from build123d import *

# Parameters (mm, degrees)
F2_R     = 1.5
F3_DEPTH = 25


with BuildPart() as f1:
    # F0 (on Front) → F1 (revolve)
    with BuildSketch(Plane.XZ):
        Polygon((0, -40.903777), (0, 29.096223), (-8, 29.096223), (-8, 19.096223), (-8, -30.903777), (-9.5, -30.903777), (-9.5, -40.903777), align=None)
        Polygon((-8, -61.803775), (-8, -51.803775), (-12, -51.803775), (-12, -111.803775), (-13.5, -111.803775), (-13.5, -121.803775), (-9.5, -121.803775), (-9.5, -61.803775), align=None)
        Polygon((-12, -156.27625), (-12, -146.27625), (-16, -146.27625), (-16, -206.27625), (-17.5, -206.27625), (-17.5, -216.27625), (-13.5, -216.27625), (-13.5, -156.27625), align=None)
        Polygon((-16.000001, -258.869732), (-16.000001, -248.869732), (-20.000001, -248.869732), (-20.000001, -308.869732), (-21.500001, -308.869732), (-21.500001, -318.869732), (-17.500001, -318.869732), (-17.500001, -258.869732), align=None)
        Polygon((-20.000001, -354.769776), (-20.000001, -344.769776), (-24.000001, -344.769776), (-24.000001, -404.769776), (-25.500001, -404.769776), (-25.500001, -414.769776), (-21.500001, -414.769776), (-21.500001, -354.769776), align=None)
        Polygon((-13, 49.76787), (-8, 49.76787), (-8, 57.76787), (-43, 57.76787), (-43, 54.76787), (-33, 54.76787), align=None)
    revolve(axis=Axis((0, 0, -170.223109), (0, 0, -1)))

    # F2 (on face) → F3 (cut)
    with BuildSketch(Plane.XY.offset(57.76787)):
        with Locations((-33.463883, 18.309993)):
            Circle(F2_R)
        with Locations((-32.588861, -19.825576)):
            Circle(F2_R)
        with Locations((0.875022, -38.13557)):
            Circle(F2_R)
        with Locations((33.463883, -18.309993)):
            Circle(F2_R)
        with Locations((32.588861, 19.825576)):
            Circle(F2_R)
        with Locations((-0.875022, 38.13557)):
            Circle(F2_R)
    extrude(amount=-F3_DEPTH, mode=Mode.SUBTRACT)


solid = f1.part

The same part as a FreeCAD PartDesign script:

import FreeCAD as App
import Part
import Sketcher
from FreeCAD import Vector
Q = App.Units.Quantity

doc = App.newDocument("Part")
params = doc.addObject("Spreadsheet::Sheet", "Params")
for row, (alias, value) in enumerate([
    ("sketch1_width", "8 mm"),
    ("sketch1_width2", "4 mm"),
    ("sketch1_width3", "5 mm"),
    ("sketch1_width4", "35 mm"),
    ("sketch1_width5", "10 mm"),
    ("revolution_angle", "360 deg"),
    ("sketch2_diameter", "3 mm"),
    ("pocket1_length", "25 mm"),
], start=1):
    params.set(f"A{row}", alias)
    params.set(f"B{row}", "=" + value)
    params.setAlias(f"B{row}", alias)

body = doc.addObject("PartDesign::Body", "Body")
body.AllowCompound = True

# Sketch on XZ plane
sketch1 = doc.addObject("Sketcher::SketchObject", "Sketch")
body.addObject(sketch1)
sketch1.AttachmentSupport = (doc.XZ_Plane, [""])
sketch1.MapMode = "FlatFace"
sketch1.addGeometry([
    Part.LineSegment(Vector(0, -40.9, 0), Vector(0, 29.1, 0)),  # 0
    Part.LineSegment(Vector(0, 29.1, 0), Vector(-8, 29.1, 0)),  # 1
    Part.LineSegment(Vector(-8, 29.1, 0), Vector(-8, -30.9, 0)),  # 2
    Part.LineSegment(Vector(-8, -30.9, 0), Vector(-9.5, -30.9, 0)),  # 3
    Part.LineSegment(Vector(-9.5, -30.9, 0), Vector(-9.5, -40.9, 0)),  # 4
    Part.LineSegment(Vector(-9.5, -40.9, 0), Vector(0, -40.9, 0)),  # 5
    Part.LineSegment(Vector(-8, -61.8, 0), Vector(-8, -51.8, 0)),  # 6
    Part.LineSegment(Vector(-8, -51.8, 0), Vector(-12, -51.8, 0)),  # 7
    Part.LineSegment(Vector(-12, -51.8, 0), Vector(-12, -111.8, 0)),  # 8
    Part.LineSegment(Vector(-12, -111.8, 0), Vector(-13.5, -111.8, 0)),  # 9
    Part.LineSegment(Vector(-13.5, -111.8, 0), Vector(-13.5, -121.8, 0)),  # 10
    Part.LineSegment(Vector(-13.5, -121.8, 0), Vector(-9.5, -121.8, 0)),  # 11
    Part.LineSegment(Vector(-9.5, -121.8, 0), Vector(-9.5, -61.8, 0)),  # 12
    Part.LineSegment(Vector(-9.5, -61.8, 0), Vector(-8, -61.8, 0)),  # 13
    Part.LineSegment(Vector(-12, -156.3, 0), Vector(-12, -146.3, 0)),  # 14
    Part.LineSegment(Vector(-12, -146.3, 0), Vector(-16, -146.3, 0)),  # 15
    Part.LineSegment(Vector(-16, -146.3, 0), Vector(-16, -206.3, 0)),  # 16
    Part.LineSegment(Vector(-16, -206.3, 0), Vector(-17.5, -206.3, 0)),  # 17
    Part.LineSegment(Vector(-17.5, -206.3, 0), Vector(-17.5, -216.3, 0)),  # 18
    Part.LineSegment(Vector(-17.5, -216.3, 0), Vector(-13.5, -216.3, 0)),  # 19
    Part.LineSegment(Vector(-13.5, -216.3, 0), Vector(-13.5, -156.3, 0)),  # 20
    Part.LineSegment(Vector(-13.5, -156.3, 0), Vector(-12, -156.3, 0)),  # 21
    Part.LineSegment(Vector(-16, -258.9, 0), Vector(-16, -248.9, 0)),  # 22
    Part.LineSegment(Vector(-16, -248.9, 0), Vector(-20, -248.9, 0)),  # 23
    Part.LineSegment(Vector(-20, -248.9, 0), Vector(-20, -308.9, 0)),  # 24
    Part.LineSegment(Vector(-20, -308.9, 0), Vector(-21.5, -308.9, 0)),  # 25
    Part.LineSegment(Vector(-21.5, -308.9, 0), Vector(-21.5, -318.9, 0)),  # 26
    Part.LineSegment(Vector(-21.5, -318.9, 0), Vector(-17.5, -318.9, 0)),  # 27
    Part.LineSegment(Vector(-17.5, -318.9, 0), Vector(-17.5, -258.9, 0)),  # 28
    Part.LineSegment(Vector(-17.5, -258.9, 0), Vector(-16, -258.9, 0)),  # 29
    Part.LineSegment(Vector(-20, -354.8, 0), Vector(-20, -344.8, 0)),  # 30
    Part.LineSegment(Vector(-20, -344.8, 0), Vector(-24, -344.8, 0)),  # 31
    Part.LineSegment(Vector(-24, -344.8, 0), Vector(-24, -404.8, 0)),  # 32
    Part.LineSegment(Vector(-24, -404.8, 0), Vector(-25.5, -404.8, 0)),  # 33
    Part.LineSegment(Vector(-25.5, -404.8, 0), Vector(-25.5, -414.8, 0)),  # 34
    Part.LineSegment(Vector(-25.5, -414.8, 0), Vector(-21.5, -414.8, 0)),  # 35
    Part.LineSegment(Vector(-21.5, -414.8, 0), Vector(-21.5, -354.8, 0)),  # 36
    Part.LineSegment(Vector(-21.5, -354.8, 0), Vector(-20, -354.8, 0)),  # 37
    Part.LineSegment(Vector(-13, 49.8, 0), Vector(-8, 49.8, 0)),  # 38
    Part.LineSegment(Vector(-8, 49.8, 0), Vector(-8, 57.8, 0)),  # 39
    Part.LineSegment(Vector(-8, 57.8, 0), Vector(-43, 57.8, 0)),  # 40
    Part.LineSegment(Vector(-43, 57.8, 0), Vector(-43, 54.8, 0)),  # 41
    Part.LineSegment(Vector(-43, 54.8, 0), Vector(-33, 54.8, 0)),  # 42
    Part.LineSegment(Vector(-33, 54.8, 0), Vector(-13, 49.8, 0)),  # 43
], False)
sketch1.addConstraint([
    Sketcher.Constraint("Coincident", 0, 2, 1, 1),
    Sketcher.Constraint("Coincident", 1, 2, 2, 1),
    Sketcher.Constraint("Coincident", 2, 2, 3, 1),
    Sketcher.Constraint("Coincident", 3, 2, 4, 1),
    Sketcher.Constraint("Coincident", 4, 2, 5, 1),
    Sketcher.Constraint("Coincident", 5, 2, 0, 1),
    Sketcher.Constraint("Coincident", 6, 2, 7, 1),
    Sketcher.Constraint("Coincident", 7, 2, 8, 1),
    Sketcher.Constraint("Coincident", 8, 2, 9, 1),
    Sketcher.Constraint("Coincident", 9, 2, 10, 1),
    Sketcher.Constraint("Coincident", 10, 2, 11, 1),
    Sketcher.Constraint("Coincident", 11, 2, 12, 1),
    Sketcher.Constraint("Coincident", 12, 2, 13, 1),
    Sketcher.Constraint("Coincident", 13, 2, 6, 1),
    Sketcher.Constraint("Coincident", 14, 2, 15, 1),
    Sketcher.Constraint("Coincident", 15, 2, 16, 1),
    Sketcher.Constraint("Coincident", 16, 2, 17, 1),
    Sketcher.Constraint("Coincident", 17, 2, 18, 1),
    Sketcher.Constraint("Coincident", 18, 2, 19, 1),
    Sketcher.Constraint("Coincident", 19, 2, 20, 1),
    Sketcher.Constraint("Coincident", 20, 2, 21, 1),
    Sketcher.Constraint("Coincident", 21, 2, 14, 1),
    Sketcher.Constraint("Coincident", 22, 2, 23, 1),
    Sketcher.Constraint("Coincident", 23, 2, 24, 1),
    Sketcher.Constraint("Coincident", 24, 2, 25, 1),
    Sketcher.Constraint("Coincident", 25, 2, 26, 1),
    Sketcher.Constraint("Coincident", 26, 2, 27, 1),
    Sketcher.Constraint("Coincident", 27, 2, 28, 1),
    Sketcher.Constraint("Coincident", 28, 2, 29, 1),
    Sketcher.Constraint("Coincident", 29, 2, 22, 1),
    Sketcher.Constraint("Coincident", 30, 2, 31, 1),
    Sketcher.Constraint("Coincident", 31, 2, 32, 1),
    Sketcher.Constraint("Coincident", 32, 2, 33, 1),
    Sketcher.Constraint("Coincident", 33, 2, 34, 1),
    Sketcher.Constraint("Coincident", 34, 2, 35, 1),
    Sketcher.Constraint("Coincident", 35, 2, 36, 1),
    Sketcher.Constraint("Coincident", 36, 2, 37, 1),
    Sketcher.Constraint("Coincident", 37, 2, 30, 1),
    Sketcher.Constraint("Coincident", 38, 2, 39, 1),
    Sketcher.Constraint("Coincident", 39, 2, 40, 1),
    Sketcher.Constraint("Coincident", 40, 2, 41, 1),
    Sketcher.Constraint("Coincident", 41, 2, 42, 1),
    Sketcher.Constraint("Coincident", 42, 2, 43, 1),
    Sketcher.Constraint("Coincident", 43, 2, 38, 1),
    Sketcher.Constraint("Vertical", 0),
    Sketcher.Constraint("Horizontal", 1),
    Sketcher.Constraint("Vertical", 2),
    Sketcher.Constraint("Horizontal", 3),
    Sketcher.Constraint("Vertical", 4),
    Sketcher.Constraint("Horizontal", 5),
    Sketcher.Constraint("Vertical", 6),
    Sketcher.Constraint("Horizontal", 7),
    Sketcher.Constraint("Vertical", 8),
    Sketcher.Constraint("Horizontal", 9),
    Sketcher.Constraint("Vertical", 10),
    Sketcher.Constraint("Horizontal", 11),
    Sketcher.Constraint("Vertical", 12),
    Sketcher.Constraint("Horizontal", 13),
    Sketcher.Constraint("Vertical", 14),
    Sketcher.Constraint("Horizontal", 15),
    Sketcher.Constraint("Vertical", 16),
    Sketcher.Constraint("Horizontal", 17),
    Sketcher.Constraint("Vertical", 18),
    Sketcher.Constraint("Horizontal", 19),
    Sketcher.Constraint("Vertical", 20),
    Sketcher.Constraint("Horizontal", 21),
    Sketcher.Constraint("Vertical", 22),
    Sketcher.Constraint("Horizontal", 23),
    Sketcher.Constraint("Vertical", 24),
    Sketcher.Constraint("Horizontal", 25),
    Sketcher.Constraint("Vertical", 26),
    Sketcher.Constraint("Horizontal", 27),
    Sketcher.Constraint("Vertical", 28),
    Sketcher.Constraint("Horizontal", 29),
    Sketcher.Constraint("Vertical", 30),
    Sketcher.Constraint("Horizontal", 31),
    Sketcher.Constraint("Vertical", 32),
    Sketcher.Constraint("Horizontal", 33),
    Sketcher.Constraint("Vertical", 34),
    Sketcher.Constraint("Horizontal", 35),
    Sketcher.Constraint("Vertical", 36),
    Sketcher.Constraint("Horizontal", 37),
    Sketcher.Constraint("Horizontal", 38),
    Sketcher.Constraint("Vertical", 39),
    Sketcher.Constraint("Horizontal", 40),
    Sketcher.Constraint("Vertical", 41),
    Sketcher.Constraint("Horizontal", 42),
    Sketcher.Constraint("PointOnObject", 0, 2, -2),
    Sketcher.Constraint("Vertical", 2, 2, 6, 2),
    Sketcher.Constraint("Vertical", 4, 2, 11, 2),
    Sketcher.Constraint("Vertical", 8, 2, 14, 2),
    Sketcher.Constraint("Vertical", 10, 2, 19, 2),
    Sketcher.Constraint("Vertical", 16, 2, 22, 2),
    Sketcher.Constraint("Vertical", 18, 2, 27, 2),
    Sketcher.Constraint("Vertical", 24, 2, 30, 2),
    Sketcher.Constraint("Vertical", 26, 2, 35, 2),
    Sketcher.Constraint("Vertical", 13, 2, 38, 2),
    Sketcher.Constraint("Equal", 3, 9),
    Sketcher.Constraint("Equal", 11, 15),
    Sketcher.Constraint("Equal", 13, 17),
    Sketcher.Constraint("Equal", 19, 23),
    Sketcher.Constraint("Equal", 21, 25),
    Sketcher.Constraint("Equal", 27, 31),
    Sketcher.Constraint("Equal", 29, 33),
    Sketcher.Constraint("Equal", 42, 4),
    Sketcher.Constraint("Equal", 4, 6),
    Sketcher.Constraint("Equal", 2, 8),
    Sketcher.Constraint("Equal", 6, 10),
    Sketcher.Constraint("Equal", 10, 14),
    Sketcher.Constraint("Equal", 12, 16),
    Sketcher.Constraint("Equal", 14, 18),
    Sketcher.Constraint("Equal", 18, 22),
    Sketcher.Constraint("Equal", 20, 24),
    Sketcher.Constraint("Equal", 22, 26),
    Sketcher.Constraint("Equal", 26, 30),
    Sketcher.Constraint("Equal", 28, 32),
    Sketcher.Constraint("Equal", 30, 34),
    Sketcher.Constraint("Equal", 1, 39),
    Sketcher.Constraint("DistanceX", 1, 2, 1, 1, Q("8 mm")),
    Sketcher.Constraint("DistanceX", 7, 2, 7, 1, Q("4 mm")),
    Sketcher.Constraint("DistanceX", 38, 1, 38, 2, Q("5 mm")),
    Sketcher.Constraint("DistanceX", 40, 2, 40, 1, Q("35 mm")),
    Sketcher.Constraint("DistanceX", 42, 1, 42, 2, Q("10 mm")),
    Sketcher.Constraint("DistanceY", 0, 1, 0, 2, Q("70 mm")),
    Sketcher.Constraint("DistanceY", 41, 2, 41, 1, Q("3 mm")),
    Sketcher.Constraint("DistanceX", 3, 2, 3, 1, Q("1.5 mm")),
    Sketcher.Constraint("DistanceY", 6, 2, 4, 2, Q("10.899998 mm")),
    Sketcher.Constraint("DistanceY", 14, 2, -1, 1, Q("146.27625 mm")),
    Sketcher.Constraint("DistanceY", 22, 2, -1, 1, Q("248.869732 mm")),
    Sketcher.Constraint("DistanceY", -1, 1, 38, 2, Q("49.76787 mm")),
    Sketcher.Constraint("DistanceY", -1, 1, 0, 2, Q("29.096223 mm")),
    Sketcher.Constraint("DistanceY", 30, 2, -1, 1, Q("344.769776 mm")),
])
sketch1.setExpression("Constraints[118]", "Params.sketch1_width")
sketch1.setExpression("Constraints[119]", "Params.sketch1_width2")
sketch1.setExpression("Constraints[120]", "Params.sketch1_width3")
sketch1.setExpression("Constraints[121]", "Params.sketch1_width4")
sketch1.setExpression("Constraints[122]", "Params.sketch1_width5")
revolution = doc.addObject("PartDesign::Revolution", "Revolution")
body.addObject(revolution)
revolution.Profile = sketch1
revolution.ReferenceAxis = (sketch1, ["V_Axis"])
revolution.setExpression("Angle", "Params.revolution_angle")

# Sketch on XY plane
sketch2 = doc.addObject("Sketcher::SketchObject", "Sketch001")
body.addObject(sketch2)
sketch2.AttachmentSupport = (doc.XY_Plane, [""])
sketch2.MapMode = "FlatFace"
sketch2.AttachmentOffset = App.Placement(Vector(0, 0, 57.76787), App.Rotation())
sketch2.addGeometry([
    Part.Circle(Vector(-33.5, 18.3, 0), Vector(0, 0, 1), 1.5),  # 0
    Part.Circle(Vector(-32.6, -19.8, 0), Vector(0, 0, 1), 1.5),  # 1
    Part.Circle(Vector(0.9, -38.1, 0), Vector(0, 0, 1), 1.5),  # 2
    Part.Circle(Vector(33.5, -18.3, 0), Vector(0, 0, 1), 1.5),  # 3
    Part.Circle(Vector(32.6, 19.8, 0), Vector(0, 0, 1), 1.5),  # 4
    Part.Circle(Vector(-0.9, 38.1, 0), Vector(0, 0, 1), 1.5),  # 5
], False)
sketch2.addConstraint([
    Sketcher.Constraint("Equal", 0, 1),
    Sketcher.Constraint("Equal", 1, 2),
    Sketcher.Constraint("Equal", 2, 3),
    Sketcher.Constraint("Equal", 3, 4),
    Sketcher.Constraint("Equal", 4, 5),
    Sketcher.Constraint("Symmetric", 0, 3, 3, 3, -1, 1),
    Sketcher.Constraint("Symmetric", 1, 3, 4, 3, -1, 1),
    Sketcher.Constraint("Symmetric", 2, 3, 5, 3, -1, 1),
    Sketcher.Constraint("Diameter", 0, Q("3 mm")),
    Sketcher.Constraint("DistanceX", 1, 3, -1, 1, Q("32.588861 mm")),
    Sketcher.Constraint("DistanceX", -1, 1, 2, 3, Q("0.875022 mm")),
    Sketcher.Constraint("DistanceY", 2, 3, -1, 1, Q("38.13557 mm")),
    Sketcher.Constraint("DistanceY", 1, 3, 0, 3, Q("38.135569 mm")),
    Sketcher.Constraint("DistanceX", 2, 3, 3, 3, Q("32.588861 mm")),
    Sketcher.Constraint("DistanceY", -1, 1, 0, 3, Q("18.309993 mm")),
])
sketch2.setExpression("Constraints[8]", "Params.sketch2_diameter")
pocket1 = doc.addObject("PartDesign::Pocket", "Pocket")
body.addObject(pocket1)
pocket1.Profile = sketch2
pocket1.setExpression("Length", "Params.pocket1_length")

doc.recompute()
